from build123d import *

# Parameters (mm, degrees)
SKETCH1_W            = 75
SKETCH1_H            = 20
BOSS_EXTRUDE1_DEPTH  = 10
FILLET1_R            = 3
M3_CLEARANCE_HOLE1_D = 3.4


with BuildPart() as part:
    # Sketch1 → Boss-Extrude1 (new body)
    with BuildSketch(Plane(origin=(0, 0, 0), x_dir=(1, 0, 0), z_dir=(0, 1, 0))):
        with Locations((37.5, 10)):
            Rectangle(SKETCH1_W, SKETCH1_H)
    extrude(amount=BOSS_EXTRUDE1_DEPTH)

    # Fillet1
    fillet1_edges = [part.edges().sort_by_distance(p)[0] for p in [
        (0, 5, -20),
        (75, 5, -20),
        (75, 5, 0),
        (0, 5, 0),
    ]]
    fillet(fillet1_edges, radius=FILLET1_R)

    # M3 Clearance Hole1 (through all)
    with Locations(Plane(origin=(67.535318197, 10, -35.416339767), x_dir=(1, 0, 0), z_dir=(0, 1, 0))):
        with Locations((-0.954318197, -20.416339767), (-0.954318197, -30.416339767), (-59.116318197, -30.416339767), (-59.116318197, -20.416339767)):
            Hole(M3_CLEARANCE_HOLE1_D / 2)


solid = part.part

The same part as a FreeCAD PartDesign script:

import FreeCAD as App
import Part
import Sketcher


def edges_at(feature, points):
    """Names of the edges that pass closest to the given points."""
    edges = feature.Shape.Edges
    near = lambda p: min(range(len(edges)), key=lambda i: edges[i].distToShape(Part.Vertex(*p))[0])
    return sorted({f"Edge{near(p) + 1}" for p in points})


def add_polygon(sketch, points):
    """Adds a closed chain of lines whose ends are joined by coincident constraints."""
    first, n = sketch.GeometryCount, len(points)
    for a, b in zip(points, points[1:] + points[:1]):
        sketch.addGeometry(Part.LineSegment(App.Vector(*a, 0), App.Vector(*b, 0)), False)
    for i in range(n):
        sketch.addConstraint(Sketcher.Constraint("Coincident", first + i, 2, first + (i + 1) % n, 1))

doc = App.newDocument("Part")
params = doc.addObject("Spreadsheet::Sheet", "Params")
for row, (alias, value) in enumerate([
    ("sketch1_width", "75 mm"),
    ("sketch1_height", "20 mm"),
    ("pad1_length", "10 mm"),
    ("fillet_radius", "3 mm"),
    ("sketch2_diameter", "3.4 mm"),
    ("hole_diameter", "3.4 mm"),
], start=1):
    params.set(f"A{row}", alias)
    params.set(f"B{row}", "=" + value)
    params.setAlias(f"B{row}", alias)

body = doc.addObject("PartDesign::Body", "Body")

# Sketch on XZ plane
sketch1 = body.newObject("Sketcher::SketchObject", "Sketch")
sketch1.AttachmentSupport = (doc.getObject("XZ_Plane"), [""])
sketch1.MapMode = "FlatFace"
add_polygon(sketch1, [(0, -20), (0, 0), (75, 0), (75, -20)])  # lines 0-3
sketch1.addConstraint([
    Sketcher.Constraint("Vertical", 0),
    Sketcher.Constraint("Horizontal", 1),
    Sketcher.Constraint("Vertical", 2),
    Sketcher.Constraint("Horizontal", 3),
    Sketcher.Constraint("Coincident", 0, 2, -1, 1),
    Sketcher.Constraint("DistanceX", 1, 1, 1, 2, 75.0),
    Sketcher.Constraint("DistanceY", 0, 1, 0, 2, 20.0),
])
sketch1.setExpression("Constraints[9]", "Params.sketch1_width")
sketch1.setExpression("Constraints[10]", "Params.sketch1_height")
pad1 = body.newObject("PartDesign::Pad", "Pad")
pad1.Profile = sketch1
pad1.setExpression("Length", "Params.pad1_length")
pad1.Reversed = True
doc.recompute()

fillet = body.newObject("PartDesign::Fillet", "Fillet")
fillet.Base = (pad1, edges_at(pad1, [
    (0, 5, -20),
    (75, 5, -20),
    (75, 5, 0),
    (0, 5, 0),
]))
fillet.setExpression("Radius", "Params.fillet_radius")

# Sketch on XZ plane
sketch2 = body.newObject("Sketcher::SketchObject", "Sketch001")
sketch2.AttachmentSupport = (doc.getObject("XZ_Plane"), [""])
sketch2.MapMode = "FlatFace"
sketch2.AttachmentOffset = App.Placement(App.Vector(0, 0, -10), App.Rotation())
sketch2.addGeometry([
    Part.Circle(App.Vector(66.581, -15, 0), App.Vector(0, 0, 1), 1.7),
    Part.Circle(App.Vector(66.581, -5, 0), App.Vector(0, 0, 1), 1.7),
    Part.Circle(App.Vector(8.419, -5, 0), App.Vector(0, 0, 1), 1.7),
    Part.Circle(App.Vector(8.419, -15, 0), App.Vector(0, 0, 1), 1.7),
], False)
sketch2.addConstraint([
    Sketcher.Constraint("Equal", 0, 1),
    Sketcher.Constraint("Equal", 1, 2),
    Sketcher.Constraint("Equal", 2, 3),
    Sketcher.Constraint("Horizontal", 1, 3, 2, 3),
    Sketcher.Constraint("Horizontal", 0, 3, 3, 3),
    Sketcher.Constraint("Vertical", 0, 3, 1, 3),
    Sketcher.Constraint("Vertical", 2, 3, 3, 3),
    Sketcher.Constraint("Diameter", 0, 3.4),
    Sketcher.Constraint("DistanceY", 0, 3, -1, 1, 15.0),
    Sketcher.Constraint("DistanceY", 1, 3, -1, 1, 5.0),
    Sketcher.Constraint("DistanceX", -1, 1, 0, 3, 66.581),
    Sketcher.Constraint("DistanceX", -1, 1, 2, 3, 8.419),
])
sketch2.setExpression("Constraints[7]", "Params.sketch2_diameter")
doc.recompute()
hole = body.newObject("PartDesign::Hole", "Hole")
hole.Profile = sketch2
hole.ThreadType = "None"
hole.setExpression("Diameter", "Params.hole_diameter")
hole.DepthType = "ThroughAll"
hole.Reversed = True

doc.recompute()
